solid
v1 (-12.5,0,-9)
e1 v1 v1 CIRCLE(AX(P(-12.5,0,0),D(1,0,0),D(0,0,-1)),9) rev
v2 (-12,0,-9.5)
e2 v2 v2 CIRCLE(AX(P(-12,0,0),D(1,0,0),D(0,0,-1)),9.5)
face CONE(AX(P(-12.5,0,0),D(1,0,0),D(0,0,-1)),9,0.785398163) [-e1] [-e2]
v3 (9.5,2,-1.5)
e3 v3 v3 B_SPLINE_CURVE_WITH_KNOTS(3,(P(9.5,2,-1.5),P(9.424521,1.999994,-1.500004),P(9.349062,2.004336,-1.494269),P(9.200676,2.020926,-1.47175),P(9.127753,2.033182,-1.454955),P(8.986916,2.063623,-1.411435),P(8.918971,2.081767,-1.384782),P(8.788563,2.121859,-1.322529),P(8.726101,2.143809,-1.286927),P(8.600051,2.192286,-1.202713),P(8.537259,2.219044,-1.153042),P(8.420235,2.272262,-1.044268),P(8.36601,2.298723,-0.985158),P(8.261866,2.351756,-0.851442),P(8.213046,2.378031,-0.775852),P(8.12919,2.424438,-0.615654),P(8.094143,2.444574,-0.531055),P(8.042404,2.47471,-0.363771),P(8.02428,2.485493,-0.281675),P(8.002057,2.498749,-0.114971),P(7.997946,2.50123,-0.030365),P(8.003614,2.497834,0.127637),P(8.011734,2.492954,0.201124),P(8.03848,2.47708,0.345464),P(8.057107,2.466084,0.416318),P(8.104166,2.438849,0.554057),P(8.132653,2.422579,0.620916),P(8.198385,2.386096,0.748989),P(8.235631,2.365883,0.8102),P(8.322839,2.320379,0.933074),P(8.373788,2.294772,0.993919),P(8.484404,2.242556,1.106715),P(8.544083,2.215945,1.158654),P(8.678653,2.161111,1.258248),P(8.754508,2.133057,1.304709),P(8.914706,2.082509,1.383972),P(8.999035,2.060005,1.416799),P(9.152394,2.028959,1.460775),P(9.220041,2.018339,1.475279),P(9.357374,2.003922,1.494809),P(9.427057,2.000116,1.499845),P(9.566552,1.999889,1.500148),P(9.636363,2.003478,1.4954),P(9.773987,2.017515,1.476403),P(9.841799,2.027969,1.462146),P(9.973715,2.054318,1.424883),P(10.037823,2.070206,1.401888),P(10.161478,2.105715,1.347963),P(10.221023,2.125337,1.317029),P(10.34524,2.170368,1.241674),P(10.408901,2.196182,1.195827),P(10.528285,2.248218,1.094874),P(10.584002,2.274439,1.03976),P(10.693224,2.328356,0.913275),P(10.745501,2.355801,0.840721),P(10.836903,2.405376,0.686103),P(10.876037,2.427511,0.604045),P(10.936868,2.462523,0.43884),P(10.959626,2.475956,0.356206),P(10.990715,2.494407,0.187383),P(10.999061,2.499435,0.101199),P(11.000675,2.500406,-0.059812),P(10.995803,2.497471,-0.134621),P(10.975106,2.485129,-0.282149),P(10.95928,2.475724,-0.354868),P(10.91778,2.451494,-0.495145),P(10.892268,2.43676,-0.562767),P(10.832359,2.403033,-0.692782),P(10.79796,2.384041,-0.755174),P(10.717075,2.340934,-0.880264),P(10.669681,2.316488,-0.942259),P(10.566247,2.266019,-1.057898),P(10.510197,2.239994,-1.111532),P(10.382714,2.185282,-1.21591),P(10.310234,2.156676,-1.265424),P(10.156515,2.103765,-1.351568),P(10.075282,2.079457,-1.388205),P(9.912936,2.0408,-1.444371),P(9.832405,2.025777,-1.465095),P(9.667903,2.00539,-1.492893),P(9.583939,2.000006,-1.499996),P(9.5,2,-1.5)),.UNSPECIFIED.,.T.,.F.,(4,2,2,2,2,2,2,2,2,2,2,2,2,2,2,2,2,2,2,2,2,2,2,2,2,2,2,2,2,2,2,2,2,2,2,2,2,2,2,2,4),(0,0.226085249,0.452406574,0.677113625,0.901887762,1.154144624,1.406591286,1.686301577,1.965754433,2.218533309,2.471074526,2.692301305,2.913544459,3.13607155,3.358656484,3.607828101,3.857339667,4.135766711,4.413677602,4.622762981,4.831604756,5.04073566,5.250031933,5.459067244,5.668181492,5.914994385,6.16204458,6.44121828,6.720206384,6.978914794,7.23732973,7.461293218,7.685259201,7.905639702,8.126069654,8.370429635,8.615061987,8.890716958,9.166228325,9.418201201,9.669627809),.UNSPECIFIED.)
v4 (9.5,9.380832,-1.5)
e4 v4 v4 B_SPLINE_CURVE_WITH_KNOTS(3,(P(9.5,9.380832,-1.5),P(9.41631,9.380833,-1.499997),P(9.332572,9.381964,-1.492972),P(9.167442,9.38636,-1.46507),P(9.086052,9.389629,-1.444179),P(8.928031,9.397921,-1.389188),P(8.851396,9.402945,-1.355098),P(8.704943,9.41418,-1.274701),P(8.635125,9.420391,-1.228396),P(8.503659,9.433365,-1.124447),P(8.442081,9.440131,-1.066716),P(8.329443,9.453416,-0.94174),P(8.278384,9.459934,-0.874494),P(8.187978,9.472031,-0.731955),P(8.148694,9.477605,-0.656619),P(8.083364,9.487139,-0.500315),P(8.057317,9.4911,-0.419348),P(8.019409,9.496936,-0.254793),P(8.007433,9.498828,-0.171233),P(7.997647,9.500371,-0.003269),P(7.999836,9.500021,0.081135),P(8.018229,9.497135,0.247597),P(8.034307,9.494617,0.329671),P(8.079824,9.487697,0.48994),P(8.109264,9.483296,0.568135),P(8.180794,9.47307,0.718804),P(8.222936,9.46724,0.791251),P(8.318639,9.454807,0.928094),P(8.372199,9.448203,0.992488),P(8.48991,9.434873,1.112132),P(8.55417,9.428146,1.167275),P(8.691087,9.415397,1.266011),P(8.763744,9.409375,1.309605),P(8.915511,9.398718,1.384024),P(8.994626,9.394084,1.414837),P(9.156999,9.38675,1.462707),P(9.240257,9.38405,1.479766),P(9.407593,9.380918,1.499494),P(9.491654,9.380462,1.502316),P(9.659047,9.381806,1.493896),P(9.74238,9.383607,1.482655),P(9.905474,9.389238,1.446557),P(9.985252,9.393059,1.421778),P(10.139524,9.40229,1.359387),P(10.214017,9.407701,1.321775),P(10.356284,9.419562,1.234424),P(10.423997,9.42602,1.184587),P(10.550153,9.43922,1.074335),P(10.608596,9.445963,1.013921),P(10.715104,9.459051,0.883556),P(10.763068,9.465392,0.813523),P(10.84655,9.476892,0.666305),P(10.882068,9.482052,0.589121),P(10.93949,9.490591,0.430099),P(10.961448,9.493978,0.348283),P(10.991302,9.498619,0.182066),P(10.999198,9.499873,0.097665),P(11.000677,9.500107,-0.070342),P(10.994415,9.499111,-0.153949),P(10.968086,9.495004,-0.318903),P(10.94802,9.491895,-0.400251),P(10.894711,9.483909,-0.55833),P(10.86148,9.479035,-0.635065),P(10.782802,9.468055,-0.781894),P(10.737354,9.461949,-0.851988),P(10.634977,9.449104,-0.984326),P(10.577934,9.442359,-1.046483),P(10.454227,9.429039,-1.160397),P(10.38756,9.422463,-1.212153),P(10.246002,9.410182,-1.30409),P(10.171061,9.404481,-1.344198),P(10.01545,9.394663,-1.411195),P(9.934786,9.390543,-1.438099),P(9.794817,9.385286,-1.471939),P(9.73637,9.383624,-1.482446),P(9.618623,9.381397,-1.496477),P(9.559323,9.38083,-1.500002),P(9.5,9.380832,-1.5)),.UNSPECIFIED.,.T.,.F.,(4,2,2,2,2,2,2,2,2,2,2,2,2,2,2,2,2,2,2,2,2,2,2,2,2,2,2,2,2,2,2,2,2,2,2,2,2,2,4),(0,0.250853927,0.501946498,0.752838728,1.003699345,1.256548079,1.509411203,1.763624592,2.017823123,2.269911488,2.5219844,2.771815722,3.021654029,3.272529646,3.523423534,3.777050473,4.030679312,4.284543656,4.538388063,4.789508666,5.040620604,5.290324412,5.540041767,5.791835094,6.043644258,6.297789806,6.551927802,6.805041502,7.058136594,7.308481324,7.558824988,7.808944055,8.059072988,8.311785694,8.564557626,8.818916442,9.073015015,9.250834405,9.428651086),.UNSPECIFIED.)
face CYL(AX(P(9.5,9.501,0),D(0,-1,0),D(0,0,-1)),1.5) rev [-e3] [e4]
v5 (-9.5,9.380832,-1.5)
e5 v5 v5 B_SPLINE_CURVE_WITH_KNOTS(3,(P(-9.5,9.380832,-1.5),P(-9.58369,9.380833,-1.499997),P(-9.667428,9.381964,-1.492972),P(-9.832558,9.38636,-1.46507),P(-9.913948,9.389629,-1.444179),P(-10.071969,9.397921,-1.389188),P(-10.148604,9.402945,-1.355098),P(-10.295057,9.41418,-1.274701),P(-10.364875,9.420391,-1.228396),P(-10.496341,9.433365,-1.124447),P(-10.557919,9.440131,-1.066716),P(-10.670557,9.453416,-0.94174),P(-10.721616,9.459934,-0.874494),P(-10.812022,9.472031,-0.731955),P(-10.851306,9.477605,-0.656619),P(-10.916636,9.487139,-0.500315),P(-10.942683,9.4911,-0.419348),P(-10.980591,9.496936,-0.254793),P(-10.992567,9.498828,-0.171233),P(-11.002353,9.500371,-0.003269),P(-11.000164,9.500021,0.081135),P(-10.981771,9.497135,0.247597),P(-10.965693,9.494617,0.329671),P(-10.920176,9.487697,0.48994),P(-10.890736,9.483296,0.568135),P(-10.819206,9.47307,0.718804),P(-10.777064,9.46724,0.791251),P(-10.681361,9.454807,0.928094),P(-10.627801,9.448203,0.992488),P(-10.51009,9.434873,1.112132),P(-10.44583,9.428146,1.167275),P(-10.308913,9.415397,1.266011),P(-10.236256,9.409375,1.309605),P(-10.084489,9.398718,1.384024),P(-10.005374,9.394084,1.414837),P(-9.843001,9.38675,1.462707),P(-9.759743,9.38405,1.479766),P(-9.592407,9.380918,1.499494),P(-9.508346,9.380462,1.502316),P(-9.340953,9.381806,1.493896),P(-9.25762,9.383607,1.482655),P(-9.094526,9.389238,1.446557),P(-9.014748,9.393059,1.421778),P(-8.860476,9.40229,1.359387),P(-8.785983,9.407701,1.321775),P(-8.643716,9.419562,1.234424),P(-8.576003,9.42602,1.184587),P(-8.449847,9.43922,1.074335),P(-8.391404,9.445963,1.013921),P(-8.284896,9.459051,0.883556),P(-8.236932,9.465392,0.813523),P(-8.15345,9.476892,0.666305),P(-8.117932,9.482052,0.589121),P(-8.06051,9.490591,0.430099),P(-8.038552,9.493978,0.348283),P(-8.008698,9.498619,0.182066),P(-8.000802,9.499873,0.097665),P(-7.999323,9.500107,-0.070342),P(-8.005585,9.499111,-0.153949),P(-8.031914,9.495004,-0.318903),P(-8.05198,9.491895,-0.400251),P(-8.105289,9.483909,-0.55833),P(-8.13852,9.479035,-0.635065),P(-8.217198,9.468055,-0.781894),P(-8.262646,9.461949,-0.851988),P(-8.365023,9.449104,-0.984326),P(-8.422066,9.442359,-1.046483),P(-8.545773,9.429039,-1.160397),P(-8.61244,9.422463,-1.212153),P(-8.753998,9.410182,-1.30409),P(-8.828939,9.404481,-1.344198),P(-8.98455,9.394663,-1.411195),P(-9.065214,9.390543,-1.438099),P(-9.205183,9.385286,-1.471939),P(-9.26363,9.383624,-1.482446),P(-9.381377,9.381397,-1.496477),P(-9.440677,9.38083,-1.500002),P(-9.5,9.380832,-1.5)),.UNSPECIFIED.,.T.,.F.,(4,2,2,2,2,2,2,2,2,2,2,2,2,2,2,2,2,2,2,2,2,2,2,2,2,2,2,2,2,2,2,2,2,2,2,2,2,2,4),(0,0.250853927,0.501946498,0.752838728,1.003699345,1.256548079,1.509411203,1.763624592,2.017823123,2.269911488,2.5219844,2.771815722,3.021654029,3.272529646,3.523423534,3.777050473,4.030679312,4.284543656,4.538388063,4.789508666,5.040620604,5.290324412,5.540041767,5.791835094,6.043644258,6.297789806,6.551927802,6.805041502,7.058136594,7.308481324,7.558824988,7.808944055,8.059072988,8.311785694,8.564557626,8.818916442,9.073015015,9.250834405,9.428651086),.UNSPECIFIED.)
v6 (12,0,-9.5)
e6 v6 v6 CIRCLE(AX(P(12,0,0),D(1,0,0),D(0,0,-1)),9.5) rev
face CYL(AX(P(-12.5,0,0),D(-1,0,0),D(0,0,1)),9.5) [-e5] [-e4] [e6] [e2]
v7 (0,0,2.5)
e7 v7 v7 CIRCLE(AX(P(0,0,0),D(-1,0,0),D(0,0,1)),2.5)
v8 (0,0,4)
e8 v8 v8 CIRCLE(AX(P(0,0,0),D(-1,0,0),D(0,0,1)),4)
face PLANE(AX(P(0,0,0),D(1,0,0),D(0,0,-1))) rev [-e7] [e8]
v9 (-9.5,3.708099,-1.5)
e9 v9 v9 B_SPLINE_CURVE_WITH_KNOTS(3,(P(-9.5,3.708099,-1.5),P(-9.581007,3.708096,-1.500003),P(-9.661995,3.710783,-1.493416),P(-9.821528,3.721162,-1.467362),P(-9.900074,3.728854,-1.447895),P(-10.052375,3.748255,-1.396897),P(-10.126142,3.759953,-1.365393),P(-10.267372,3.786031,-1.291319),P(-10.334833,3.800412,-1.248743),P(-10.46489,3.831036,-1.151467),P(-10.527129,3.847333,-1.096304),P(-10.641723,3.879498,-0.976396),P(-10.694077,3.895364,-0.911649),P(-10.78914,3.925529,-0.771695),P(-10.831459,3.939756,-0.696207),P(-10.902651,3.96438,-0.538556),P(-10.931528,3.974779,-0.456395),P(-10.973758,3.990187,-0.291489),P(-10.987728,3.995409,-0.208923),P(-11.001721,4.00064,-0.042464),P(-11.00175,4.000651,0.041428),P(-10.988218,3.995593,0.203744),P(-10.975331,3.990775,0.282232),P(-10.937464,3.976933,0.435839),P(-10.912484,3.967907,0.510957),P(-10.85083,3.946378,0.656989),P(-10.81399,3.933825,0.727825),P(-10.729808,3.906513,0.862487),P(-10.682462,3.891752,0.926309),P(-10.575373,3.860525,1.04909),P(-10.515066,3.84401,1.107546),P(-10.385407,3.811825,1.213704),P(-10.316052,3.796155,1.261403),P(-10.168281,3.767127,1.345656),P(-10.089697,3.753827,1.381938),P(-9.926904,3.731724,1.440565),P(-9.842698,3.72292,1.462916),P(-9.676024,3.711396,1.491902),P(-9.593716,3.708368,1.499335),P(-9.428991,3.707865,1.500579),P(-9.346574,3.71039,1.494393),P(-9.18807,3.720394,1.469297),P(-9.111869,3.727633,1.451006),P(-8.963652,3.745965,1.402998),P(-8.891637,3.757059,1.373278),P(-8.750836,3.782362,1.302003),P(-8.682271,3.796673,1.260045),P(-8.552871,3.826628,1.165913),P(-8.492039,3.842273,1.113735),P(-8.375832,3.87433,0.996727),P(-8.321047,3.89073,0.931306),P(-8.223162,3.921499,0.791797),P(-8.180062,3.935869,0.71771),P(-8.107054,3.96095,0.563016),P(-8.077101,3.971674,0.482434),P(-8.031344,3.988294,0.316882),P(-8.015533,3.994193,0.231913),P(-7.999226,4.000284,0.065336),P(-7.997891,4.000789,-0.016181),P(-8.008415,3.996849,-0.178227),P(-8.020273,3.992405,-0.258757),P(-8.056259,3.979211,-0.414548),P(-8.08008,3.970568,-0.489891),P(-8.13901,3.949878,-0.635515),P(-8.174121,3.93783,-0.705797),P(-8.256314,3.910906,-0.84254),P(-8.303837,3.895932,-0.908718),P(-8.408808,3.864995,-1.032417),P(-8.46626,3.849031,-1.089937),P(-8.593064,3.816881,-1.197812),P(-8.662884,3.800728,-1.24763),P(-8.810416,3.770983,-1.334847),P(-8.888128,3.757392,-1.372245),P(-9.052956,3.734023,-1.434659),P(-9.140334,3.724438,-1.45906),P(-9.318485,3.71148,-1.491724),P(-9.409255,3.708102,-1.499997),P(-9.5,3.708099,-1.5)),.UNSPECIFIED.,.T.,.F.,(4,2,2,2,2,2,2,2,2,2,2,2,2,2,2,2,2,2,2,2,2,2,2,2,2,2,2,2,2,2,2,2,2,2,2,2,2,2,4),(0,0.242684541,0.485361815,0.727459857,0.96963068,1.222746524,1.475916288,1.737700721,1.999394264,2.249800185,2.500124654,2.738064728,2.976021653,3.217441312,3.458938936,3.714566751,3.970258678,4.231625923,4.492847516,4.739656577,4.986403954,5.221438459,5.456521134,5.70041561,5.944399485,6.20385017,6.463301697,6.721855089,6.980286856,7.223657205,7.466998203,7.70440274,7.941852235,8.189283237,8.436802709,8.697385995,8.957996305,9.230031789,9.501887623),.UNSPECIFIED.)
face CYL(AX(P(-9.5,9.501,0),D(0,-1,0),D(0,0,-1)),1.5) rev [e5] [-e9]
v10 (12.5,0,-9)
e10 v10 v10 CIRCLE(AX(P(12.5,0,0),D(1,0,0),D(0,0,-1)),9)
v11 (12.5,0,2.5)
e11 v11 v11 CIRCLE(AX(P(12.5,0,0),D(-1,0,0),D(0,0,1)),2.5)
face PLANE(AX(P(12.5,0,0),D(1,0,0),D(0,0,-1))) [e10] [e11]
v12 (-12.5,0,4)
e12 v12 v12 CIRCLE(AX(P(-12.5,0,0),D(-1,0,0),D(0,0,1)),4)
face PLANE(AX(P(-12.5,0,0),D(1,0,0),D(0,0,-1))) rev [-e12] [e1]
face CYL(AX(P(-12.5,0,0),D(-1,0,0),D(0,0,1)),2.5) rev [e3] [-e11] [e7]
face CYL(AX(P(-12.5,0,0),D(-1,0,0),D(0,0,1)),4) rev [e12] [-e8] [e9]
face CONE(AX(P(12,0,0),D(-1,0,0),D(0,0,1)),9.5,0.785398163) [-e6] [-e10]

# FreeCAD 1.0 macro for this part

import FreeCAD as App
import Part
import Sketcher

V = App.Vector
Q = App.Units.Quantity


def edges_at(feature, points):
    """Names of the edges that pass closest to the given points."""
    edges = feature.Shape.Edges
    near = lambda p: min(range(len(edges)), key=lambda i: edges[i].distToShape(Part.Vertex(*p))[0])
    return sorted({f"Edge{near(p) + 1}" for p in points})


def add_polygon(sketch, points):
    """Adds a closed chain of lines whose ends are joined by coincident constraints."""
    first, n = sketch.GeometryCount, len(points)
    for a, b in zip(points, points[1:] + points[:1]):
        sketch.addGeometry(Part.LineSegment(App.Vector(*a, 0), App.Vector(*b, 0)), False)
    for i in range(n):
        sketch.addConstraint(Sketcher.Constraint("Coincident", first + i, 2, first + (i + 1) % n, 1))

doc = App.newDocument("Part")
body = doc.addObject("PartDesign::Body", "Body")

# Sketch on XY plane
sketch1 = body.newObject("Sketcher::SketchObject", "Sketch")
sketch1.AttachmentSupport = (doc.getObject("XY_Plane"), [""])
sketch1.MapMode = "FlatFace"
add_polygon(sketch1, [(-12.5, 4), (0, 4), (0, 2.5), (12.5, 2.5), (12.5, 9.5), (-12.5, 9.5)])  # lines 0-5
sketch1.addConstraint(Sketcher.Constraint("Horizontal", 0))
sketch1.addConstraint(Sketcher.Constraint("Vertical", 1))
sketch1.addConstraint(Sketcher.Constraint("Horizontal", 2))
sketch1.addConstraint(Sketcher.Constraint("Vertical", 3))
sketch1.addConstraint(Sketcher.Constraint("Horizontal", 4))
sketch1.addConstraint(Sketcher.Constraint("Vertical", 5))
sketch1.addConstraint(Sketcher.Constraint("PointOnObject", 0, 2, -2))
sketch1.addConstraint(Sketcher.Constraint("Equal", 0, 2))
sketch1.addConstraint(Sketcher.Constraint("DistanceX", 4, 2, 4, 1, Q("25 mm")))
sketch1.addConstraint(Sketcher.Constraint("DistanceY", 3, 1, 3, 2, Q("7 mm")))
sketch1.addConstraint(Sketcher.Constraint("DistanceY", 1, 2, 1, 1, Q("1.5 mm")))
sketch1.addConstraint(Sketcher.Constraint("DistanceY", -1, 1, 0, 2, Q("4 mm")))
revolution = body.newObject("PartDesign::Revolution", "Revolution")
revolution.Profile = sketch1
revolution.ReferenceAxis = (sketch1, ["H_Axis"])
revolution.Angle = 360

# Sketch on XZ plane
sketch2 = body.newObject("Sketcher::SketchObject", "Sketch001")
sketch2.AttachmentSupport = (doc.getObject("XZ_Plane"), [""])
sketch2.MapMode = "FlatFace"
sketch2.addGeometry(Part.Circle(V(-9.5, 0, 0), V(0, 0, 1), 1.5), False)
sketch2.addConstraint(Sketcher.Constraint("PointOnObject", 0, 3, -1))
sketch2.addConstraint(Sketcher.Constraint("Diameter", 0, Q("3 mm")))
sketch2.addConstraint(Sketcher.Constraint("DistanceX", 0, 3, -1, 1, Q("9.5 mm")))
pocket1 = body.newObject("PartDesign::Pocket", "Pocket")
pocket1.Profile = sketch2
pocket1.Length = 9.5

# Sketch on XZ plane
sketch3 = body.newObject("Sketcher::SketchObject", "Sketch002")
sketch3.AttachmentSupport = (doc.getObject("XZ_Plane"), [""])
sketch3.MapMode = "FlatFace"
sketch3.addGeometry(Part.Circle(V(9.5, 0, 0), V(0, 0, 1), 1.5), False)
sketch3.addConstraint(Sketcher.Constraint("PointOnObject", 0, 3, -1))
sketch3.addConstraint(Sketcher.Constraint("Diameter", 0, Q("3 mm")))
sketch3.addConstraint(Sketcher.Constraint("DistanceX", -1, 1, 0, 3, Q("9.5 mm")))
pocket2 = body.newObject("PartDesign::Pocket", "Pocket001")
pocket2.Profile = sketch3
pocket2.Length = 9.5
doc.recompute()

chamfer = body.newObject("PartDesign::Chamfer", "Chamfer")
chamfer.Base = (pocket2, edges_at(pocket2, [(-12.5, -9.5, 0), (12.5, -9.5, 0)]))
chamfer.Size = 0.5

doc.recompute()
